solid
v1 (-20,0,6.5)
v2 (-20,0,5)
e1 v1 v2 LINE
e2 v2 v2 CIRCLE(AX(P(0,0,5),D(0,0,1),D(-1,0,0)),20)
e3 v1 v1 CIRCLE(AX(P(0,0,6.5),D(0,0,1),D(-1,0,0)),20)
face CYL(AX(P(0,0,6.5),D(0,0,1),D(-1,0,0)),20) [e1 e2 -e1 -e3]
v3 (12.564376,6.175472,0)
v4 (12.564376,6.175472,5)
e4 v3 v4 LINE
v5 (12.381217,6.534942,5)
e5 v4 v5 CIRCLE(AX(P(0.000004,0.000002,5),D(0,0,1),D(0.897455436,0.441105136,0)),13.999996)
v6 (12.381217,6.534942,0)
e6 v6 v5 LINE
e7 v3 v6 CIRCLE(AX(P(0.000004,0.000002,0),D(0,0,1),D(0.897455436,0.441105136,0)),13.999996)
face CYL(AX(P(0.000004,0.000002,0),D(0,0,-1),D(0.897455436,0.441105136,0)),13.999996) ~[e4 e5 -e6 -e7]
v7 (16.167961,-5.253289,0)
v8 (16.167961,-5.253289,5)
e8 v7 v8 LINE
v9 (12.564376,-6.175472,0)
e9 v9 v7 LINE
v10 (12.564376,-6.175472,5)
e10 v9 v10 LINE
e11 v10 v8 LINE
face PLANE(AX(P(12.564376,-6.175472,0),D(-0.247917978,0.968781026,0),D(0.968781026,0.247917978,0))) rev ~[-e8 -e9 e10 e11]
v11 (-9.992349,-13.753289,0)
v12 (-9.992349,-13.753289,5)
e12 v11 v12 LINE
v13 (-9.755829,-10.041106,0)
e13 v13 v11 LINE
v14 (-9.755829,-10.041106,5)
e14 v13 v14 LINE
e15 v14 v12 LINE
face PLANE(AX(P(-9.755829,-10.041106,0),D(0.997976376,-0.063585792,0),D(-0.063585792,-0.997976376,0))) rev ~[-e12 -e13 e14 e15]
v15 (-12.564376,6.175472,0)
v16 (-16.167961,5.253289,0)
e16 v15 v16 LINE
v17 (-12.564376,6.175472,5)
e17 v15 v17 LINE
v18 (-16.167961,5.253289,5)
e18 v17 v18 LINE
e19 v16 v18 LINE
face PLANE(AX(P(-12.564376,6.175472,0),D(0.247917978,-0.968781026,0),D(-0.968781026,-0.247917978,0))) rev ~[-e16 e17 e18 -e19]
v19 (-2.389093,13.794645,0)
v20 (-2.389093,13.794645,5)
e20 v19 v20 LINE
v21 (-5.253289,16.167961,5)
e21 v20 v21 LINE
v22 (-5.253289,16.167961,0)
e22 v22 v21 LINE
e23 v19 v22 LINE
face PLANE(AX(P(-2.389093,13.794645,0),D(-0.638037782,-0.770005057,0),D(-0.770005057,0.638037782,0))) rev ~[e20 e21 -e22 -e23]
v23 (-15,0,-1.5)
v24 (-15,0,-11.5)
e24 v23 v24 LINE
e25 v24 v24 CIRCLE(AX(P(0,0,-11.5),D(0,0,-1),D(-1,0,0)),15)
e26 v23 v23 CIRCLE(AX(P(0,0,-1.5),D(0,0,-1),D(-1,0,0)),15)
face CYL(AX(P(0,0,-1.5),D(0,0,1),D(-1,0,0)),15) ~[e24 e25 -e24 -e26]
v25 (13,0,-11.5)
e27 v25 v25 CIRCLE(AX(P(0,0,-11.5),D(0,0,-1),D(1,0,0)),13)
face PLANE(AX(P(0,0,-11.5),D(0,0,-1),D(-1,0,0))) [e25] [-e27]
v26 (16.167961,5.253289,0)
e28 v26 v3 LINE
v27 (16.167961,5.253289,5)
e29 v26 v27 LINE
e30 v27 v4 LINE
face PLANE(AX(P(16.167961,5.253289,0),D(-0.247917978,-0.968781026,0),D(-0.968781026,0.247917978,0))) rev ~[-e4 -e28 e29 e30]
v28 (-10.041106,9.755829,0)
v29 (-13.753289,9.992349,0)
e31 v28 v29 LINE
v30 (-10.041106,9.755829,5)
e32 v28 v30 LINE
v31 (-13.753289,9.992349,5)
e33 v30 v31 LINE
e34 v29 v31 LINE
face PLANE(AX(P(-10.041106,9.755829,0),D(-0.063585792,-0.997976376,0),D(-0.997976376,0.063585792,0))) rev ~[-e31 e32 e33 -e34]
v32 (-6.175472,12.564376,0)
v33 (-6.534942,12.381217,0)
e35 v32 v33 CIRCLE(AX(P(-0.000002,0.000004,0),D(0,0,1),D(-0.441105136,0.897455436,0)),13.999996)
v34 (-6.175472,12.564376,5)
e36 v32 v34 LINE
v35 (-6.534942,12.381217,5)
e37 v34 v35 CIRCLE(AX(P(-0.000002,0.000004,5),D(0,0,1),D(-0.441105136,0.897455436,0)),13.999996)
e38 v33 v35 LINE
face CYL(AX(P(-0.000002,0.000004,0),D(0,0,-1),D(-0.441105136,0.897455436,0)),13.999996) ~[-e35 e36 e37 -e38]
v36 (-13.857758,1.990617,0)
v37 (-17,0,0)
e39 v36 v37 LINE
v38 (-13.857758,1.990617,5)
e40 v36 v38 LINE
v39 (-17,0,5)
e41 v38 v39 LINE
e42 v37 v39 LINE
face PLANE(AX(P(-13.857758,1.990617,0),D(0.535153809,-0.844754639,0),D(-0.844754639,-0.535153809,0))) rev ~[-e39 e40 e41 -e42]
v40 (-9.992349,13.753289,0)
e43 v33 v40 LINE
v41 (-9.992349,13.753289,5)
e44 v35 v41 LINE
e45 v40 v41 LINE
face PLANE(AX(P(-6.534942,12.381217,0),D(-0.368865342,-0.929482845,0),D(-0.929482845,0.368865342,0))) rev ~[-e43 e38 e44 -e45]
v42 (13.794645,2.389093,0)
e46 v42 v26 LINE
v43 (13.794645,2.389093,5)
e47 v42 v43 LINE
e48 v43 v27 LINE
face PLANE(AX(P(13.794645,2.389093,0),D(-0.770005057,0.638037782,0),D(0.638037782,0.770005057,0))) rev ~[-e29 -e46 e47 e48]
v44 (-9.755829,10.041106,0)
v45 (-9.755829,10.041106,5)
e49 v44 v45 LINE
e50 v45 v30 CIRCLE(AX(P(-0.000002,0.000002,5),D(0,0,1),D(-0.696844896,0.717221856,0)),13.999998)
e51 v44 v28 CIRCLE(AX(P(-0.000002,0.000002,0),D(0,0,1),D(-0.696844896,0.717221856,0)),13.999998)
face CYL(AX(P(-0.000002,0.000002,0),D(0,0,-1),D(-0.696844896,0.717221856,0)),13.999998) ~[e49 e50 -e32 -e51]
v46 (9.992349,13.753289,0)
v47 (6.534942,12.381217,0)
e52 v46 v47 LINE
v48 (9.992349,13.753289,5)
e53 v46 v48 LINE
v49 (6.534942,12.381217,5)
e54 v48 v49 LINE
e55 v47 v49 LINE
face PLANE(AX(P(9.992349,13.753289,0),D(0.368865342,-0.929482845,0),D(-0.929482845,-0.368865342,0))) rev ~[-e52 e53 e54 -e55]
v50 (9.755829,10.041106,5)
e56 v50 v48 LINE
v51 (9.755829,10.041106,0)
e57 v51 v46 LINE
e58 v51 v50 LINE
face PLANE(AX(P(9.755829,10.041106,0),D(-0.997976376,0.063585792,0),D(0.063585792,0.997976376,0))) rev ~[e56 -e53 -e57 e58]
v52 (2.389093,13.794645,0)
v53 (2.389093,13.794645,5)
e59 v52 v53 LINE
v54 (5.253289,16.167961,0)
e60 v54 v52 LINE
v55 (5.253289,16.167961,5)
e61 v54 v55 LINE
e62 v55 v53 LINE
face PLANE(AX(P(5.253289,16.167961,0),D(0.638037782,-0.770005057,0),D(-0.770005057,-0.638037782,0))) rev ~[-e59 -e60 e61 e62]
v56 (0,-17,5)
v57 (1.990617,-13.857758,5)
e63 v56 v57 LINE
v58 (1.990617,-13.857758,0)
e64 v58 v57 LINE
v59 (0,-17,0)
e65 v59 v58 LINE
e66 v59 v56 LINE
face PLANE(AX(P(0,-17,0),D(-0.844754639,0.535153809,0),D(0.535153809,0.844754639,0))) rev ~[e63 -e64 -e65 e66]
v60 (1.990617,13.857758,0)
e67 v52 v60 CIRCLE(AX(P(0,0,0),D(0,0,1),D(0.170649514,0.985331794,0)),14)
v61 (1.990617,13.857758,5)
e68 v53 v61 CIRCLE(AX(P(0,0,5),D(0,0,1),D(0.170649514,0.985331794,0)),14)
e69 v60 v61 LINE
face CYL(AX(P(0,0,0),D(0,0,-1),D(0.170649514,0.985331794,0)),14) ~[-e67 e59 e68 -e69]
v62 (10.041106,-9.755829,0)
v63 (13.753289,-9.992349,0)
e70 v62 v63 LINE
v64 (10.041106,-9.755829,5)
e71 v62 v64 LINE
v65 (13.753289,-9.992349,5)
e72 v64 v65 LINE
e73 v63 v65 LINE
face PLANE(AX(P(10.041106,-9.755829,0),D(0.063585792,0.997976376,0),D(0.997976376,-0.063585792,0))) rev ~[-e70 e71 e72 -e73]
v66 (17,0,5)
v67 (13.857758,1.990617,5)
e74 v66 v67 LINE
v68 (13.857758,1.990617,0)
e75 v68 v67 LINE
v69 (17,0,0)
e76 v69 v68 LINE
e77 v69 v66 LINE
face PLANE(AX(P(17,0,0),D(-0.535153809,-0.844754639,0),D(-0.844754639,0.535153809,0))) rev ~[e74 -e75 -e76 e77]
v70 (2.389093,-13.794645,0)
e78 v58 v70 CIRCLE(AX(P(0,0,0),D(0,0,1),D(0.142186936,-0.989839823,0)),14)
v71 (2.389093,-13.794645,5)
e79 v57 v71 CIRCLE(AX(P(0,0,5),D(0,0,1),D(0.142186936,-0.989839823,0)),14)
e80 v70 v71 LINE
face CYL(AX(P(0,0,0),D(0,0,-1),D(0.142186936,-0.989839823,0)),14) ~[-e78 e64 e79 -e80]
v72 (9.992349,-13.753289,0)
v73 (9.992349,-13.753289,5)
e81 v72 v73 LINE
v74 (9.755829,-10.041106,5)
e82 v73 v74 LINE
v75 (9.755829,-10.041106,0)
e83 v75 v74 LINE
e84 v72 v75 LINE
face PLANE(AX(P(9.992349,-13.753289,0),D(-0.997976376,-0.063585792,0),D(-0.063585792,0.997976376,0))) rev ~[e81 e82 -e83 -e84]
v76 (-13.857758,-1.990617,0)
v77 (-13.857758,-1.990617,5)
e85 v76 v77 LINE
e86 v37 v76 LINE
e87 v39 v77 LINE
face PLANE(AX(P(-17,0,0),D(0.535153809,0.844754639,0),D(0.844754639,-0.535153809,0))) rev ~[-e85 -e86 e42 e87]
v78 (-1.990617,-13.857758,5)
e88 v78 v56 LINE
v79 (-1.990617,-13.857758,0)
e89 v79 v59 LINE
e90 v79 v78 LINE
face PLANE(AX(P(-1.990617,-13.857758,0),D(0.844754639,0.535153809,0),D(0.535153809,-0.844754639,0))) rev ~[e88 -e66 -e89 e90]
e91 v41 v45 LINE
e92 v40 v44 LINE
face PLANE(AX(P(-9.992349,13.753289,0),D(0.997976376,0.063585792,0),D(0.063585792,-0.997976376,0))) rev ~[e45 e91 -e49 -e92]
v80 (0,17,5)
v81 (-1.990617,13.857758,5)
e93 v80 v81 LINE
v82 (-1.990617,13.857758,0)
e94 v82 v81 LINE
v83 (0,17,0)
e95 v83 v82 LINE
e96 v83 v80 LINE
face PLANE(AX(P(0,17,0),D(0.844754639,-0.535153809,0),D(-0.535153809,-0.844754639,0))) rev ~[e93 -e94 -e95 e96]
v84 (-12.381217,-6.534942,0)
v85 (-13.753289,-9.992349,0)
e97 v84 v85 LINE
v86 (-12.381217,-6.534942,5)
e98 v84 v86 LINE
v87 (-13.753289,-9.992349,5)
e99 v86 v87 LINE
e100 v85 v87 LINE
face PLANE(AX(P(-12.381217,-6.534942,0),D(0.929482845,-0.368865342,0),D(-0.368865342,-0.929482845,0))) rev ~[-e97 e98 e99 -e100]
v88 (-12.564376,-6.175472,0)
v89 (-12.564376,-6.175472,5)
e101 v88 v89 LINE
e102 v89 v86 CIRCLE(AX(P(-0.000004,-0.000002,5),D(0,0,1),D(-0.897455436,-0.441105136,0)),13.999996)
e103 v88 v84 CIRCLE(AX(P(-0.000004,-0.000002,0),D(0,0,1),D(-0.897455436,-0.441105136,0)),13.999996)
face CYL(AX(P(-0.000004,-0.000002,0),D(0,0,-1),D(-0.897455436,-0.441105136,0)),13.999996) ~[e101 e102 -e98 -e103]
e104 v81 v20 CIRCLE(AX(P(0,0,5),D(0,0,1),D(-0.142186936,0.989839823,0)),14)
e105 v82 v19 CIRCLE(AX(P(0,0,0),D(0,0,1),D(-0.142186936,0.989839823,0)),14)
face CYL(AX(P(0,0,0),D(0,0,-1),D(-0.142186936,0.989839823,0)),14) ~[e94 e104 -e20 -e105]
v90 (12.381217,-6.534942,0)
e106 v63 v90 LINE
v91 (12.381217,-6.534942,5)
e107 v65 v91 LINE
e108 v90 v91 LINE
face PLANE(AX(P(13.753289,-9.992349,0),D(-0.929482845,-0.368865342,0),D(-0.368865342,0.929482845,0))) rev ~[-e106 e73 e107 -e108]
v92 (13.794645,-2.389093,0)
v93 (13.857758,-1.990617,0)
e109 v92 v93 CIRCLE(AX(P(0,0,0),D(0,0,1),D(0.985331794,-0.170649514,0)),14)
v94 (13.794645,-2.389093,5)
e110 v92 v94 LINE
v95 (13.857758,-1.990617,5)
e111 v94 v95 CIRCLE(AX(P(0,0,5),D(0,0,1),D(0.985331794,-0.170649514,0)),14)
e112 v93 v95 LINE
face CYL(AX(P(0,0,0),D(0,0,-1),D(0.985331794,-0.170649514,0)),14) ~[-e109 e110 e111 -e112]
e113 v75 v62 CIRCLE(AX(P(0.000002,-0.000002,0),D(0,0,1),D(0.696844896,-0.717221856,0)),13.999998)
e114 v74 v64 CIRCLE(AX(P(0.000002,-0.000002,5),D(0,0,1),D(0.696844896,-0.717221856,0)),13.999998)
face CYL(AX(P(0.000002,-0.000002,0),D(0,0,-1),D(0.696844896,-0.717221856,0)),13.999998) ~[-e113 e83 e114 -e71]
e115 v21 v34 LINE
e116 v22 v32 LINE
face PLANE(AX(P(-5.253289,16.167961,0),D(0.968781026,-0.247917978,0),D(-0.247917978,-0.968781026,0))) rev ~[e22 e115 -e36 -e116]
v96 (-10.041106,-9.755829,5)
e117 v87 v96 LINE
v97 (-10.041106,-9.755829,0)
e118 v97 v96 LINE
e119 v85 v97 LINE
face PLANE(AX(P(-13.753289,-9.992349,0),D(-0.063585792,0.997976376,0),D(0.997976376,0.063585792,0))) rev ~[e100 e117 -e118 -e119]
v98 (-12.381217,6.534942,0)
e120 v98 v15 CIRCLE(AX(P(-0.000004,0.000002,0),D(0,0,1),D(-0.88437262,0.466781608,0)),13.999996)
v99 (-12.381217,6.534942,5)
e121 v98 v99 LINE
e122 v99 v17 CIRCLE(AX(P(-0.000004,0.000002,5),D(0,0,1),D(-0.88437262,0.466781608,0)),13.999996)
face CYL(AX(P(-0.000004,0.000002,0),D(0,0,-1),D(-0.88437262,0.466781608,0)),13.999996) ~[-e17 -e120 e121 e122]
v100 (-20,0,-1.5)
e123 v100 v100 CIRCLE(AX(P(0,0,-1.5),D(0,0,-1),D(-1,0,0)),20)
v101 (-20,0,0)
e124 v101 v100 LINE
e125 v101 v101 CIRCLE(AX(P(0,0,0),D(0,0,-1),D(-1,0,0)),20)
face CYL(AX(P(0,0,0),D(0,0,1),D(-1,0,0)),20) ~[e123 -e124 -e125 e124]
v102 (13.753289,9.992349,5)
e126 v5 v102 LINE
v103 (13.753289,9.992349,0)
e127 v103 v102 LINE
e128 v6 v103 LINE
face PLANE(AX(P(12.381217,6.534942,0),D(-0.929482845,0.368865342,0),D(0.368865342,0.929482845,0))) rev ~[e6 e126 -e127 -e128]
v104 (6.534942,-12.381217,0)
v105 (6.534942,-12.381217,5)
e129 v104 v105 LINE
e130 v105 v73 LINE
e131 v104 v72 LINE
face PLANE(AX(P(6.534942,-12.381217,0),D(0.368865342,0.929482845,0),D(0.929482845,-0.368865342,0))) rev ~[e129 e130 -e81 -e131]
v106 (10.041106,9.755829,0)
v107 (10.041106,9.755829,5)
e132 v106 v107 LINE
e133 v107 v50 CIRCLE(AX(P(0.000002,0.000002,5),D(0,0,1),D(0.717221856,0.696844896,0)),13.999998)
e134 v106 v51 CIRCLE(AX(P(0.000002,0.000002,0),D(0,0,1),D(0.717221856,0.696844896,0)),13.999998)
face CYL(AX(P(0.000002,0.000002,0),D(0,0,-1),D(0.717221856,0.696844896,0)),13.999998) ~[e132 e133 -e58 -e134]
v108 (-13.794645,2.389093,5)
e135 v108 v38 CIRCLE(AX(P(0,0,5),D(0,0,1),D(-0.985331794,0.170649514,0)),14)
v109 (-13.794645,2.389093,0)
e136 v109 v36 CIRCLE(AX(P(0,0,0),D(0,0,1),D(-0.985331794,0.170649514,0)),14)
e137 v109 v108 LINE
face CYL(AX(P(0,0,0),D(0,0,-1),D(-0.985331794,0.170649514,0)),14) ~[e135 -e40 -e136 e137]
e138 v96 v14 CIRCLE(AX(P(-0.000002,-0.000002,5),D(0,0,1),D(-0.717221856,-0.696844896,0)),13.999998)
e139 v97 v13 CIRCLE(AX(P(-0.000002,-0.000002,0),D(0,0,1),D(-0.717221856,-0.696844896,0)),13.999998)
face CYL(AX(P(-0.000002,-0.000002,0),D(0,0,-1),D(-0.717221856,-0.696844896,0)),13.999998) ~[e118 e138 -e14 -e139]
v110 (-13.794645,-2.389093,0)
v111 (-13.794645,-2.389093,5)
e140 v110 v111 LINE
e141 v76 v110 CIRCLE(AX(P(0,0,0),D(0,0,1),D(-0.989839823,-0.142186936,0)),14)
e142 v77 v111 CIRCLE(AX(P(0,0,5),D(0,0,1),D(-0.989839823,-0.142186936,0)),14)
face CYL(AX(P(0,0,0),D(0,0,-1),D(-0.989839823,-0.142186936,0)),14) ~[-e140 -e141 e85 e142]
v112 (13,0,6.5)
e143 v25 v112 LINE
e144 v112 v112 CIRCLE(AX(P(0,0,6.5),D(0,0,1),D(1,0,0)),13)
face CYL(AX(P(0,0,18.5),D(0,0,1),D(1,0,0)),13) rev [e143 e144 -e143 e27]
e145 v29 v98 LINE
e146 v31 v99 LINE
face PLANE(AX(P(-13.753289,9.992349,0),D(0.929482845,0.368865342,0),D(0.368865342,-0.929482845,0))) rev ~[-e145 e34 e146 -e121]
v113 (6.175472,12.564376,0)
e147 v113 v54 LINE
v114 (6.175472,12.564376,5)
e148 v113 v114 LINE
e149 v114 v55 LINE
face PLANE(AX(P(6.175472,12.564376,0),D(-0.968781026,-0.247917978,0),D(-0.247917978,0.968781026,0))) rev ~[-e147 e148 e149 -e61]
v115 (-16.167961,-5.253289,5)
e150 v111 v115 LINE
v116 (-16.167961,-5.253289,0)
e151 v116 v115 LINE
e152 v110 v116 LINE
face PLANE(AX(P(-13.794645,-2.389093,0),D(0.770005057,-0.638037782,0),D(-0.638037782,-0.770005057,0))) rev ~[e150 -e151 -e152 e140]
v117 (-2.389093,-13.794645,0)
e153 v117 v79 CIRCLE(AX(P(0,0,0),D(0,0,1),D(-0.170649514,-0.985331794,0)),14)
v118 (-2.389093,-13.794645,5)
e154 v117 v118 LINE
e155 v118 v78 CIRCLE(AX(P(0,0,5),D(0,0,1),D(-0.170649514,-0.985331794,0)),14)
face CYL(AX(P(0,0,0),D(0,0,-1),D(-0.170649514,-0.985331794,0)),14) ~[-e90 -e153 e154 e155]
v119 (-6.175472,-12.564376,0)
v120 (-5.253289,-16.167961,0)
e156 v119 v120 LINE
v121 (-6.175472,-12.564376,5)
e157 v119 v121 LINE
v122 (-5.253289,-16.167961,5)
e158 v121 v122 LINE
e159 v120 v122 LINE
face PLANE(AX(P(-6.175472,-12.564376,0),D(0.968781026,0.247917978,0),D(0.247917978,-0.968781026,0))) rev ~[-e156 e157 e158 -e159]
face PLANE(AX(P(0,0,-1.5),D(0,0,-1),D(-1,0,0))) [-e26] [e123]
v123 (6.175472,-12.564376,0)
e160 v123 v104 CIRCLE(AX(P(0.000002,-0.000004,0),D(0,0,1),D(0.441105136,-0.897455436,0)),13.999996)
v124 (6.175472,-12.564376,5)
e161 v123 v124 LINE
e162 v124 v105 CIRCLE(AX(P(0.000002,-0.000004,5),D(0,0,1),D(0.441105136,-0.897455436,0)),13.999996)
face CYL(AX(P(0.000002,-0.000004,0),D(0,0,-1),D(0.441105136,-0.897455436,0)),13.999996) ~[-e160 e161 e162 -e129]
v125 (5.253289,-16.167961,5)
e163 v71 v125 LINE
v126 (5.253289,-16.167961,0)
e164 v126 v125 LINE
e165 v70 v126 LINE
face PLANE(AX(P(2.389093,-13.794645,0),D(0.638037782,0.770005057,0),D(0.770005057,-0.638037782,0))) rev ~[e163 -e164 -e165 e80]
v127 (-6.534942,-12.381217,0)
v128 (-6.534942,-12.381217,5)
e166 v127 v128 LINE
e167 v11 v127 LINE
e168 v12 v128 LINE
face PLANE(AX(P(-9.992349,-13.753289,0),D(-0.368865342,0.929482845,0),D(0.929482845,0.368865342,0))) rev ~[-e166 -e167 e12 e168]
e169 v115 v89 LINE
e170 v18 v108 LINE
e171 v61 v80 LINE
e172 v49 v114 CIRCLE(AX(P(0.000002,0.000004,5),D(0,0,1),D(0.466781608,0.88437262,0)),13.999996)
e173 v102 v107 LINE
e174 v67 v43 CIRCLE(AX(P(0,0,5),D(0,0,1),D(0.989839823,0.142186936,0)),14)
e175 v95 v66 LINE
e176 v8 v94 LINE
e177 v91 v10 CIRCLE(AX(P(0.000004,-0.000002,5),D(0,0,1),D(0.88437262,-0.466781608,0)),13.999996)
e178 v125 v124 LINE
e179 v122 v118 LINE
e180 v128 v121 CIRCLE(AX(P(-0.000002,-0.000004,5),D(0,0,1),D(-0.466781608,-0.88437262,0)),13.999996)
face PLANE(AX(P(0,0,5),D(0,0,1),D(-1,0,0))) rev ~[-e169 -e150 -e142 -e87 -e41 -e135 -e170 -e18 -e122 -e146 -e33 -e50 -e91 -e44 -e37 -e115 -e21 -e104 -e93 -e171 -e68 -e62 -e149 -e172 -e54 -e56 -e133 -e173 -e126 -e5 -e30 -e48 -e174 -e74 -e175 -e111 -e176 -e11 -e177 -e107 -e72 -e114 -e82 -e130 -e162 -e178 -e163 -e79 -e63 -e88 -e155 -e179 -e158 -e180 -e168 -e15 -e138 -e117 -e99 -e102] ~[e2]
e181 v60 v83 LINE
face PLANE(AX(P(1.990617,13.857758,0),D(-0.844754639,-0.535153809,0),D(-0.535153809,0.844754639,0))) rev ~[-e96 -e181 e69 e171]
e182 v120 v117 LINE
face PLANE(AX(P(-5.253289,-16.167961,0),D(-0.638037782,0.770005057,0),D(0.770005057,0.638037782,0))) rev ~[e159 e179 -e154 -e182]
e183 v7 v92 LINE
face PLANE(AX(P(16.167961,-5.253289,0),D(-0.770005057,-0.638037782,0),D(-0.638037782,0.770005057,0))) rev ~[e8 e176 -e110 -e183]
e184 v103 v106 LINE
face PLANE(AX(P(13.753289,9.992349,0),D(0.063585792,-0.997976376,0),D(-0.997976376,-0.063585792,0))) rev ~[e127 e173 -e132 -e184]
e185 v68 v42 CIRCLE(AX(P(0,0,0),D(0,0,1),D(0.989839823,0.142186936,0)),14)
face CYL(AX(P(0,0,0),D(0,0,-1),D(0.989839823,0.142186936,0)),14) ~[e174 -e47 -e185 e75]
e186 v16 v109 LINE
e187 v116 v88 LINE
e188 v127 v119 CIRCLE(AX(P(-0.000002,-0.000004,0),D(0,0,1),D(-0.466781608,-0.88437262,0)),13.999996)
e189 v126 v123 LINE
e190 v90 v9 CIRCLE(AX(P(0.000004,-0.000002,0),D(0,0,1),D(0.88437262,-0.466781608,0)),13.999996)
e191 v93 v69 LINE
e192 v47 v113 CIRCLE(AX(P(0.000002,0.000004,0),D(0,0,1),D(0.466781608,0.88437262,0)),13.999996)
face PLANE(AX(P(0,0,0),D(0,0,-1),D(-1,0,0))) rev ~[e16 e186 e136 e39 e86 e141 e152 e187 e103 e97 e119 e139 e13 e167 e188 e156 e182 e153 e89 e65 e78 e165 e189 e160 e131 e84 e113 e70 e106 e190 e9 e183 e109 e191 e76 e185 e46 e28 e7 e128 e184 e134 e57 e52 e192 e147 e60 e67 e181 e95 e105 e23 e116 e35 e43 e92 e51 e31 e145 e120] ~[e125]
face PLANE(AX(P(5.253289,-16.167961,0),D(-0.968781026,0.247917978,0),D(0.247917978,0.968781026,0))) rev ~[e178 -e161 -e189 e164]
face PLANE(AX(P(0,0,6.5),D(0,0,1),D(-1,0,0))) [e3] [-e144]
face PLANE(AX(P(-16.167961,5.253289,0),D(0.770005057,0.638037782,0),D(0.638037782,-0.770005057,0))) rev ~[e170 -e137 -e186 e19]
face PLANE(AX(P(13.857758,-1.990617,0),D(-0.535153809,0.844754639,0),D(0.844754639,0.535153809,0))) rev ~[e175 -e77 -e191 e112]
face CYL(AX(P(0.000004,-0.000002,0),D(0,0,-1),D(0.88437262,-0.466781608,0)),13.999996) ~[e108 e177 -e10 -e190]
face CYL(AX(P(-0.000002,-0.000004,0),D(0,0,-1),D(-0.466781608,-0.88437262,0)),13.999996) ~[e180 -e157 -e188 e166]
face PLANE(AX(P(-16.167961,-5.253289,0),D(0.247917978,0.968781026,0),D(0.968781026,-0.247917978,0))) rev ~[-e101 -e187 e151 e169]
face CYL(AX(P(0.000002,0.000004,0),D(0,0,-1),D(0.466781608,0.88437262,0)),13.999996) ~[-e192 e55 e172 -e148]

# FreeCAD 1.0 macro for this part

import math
import FreeCAD as App
import Part
import Sketcher
from FreeCAD import Vector
Q = App.Units.Quantity

doc = App.newDocument("Part")
body = doc.addObject("PartDesign::Body", "Body")

sketch1 = body.newObject("Sketcher::SketchObject", "Sketch")
sketch1.AttachmentSupport = (doc.getObject("XY_Plane"), [""])
sketch1.MapMode = "FlatFace"
sketch1.addGeometry(Part.LineSegment(Vector(0, 17, 0), Vector(-1.99, 13.86, 0)), False)
sketch1.addGeometry(Part.ArcOfCircle(Part.Circle(Vector(0, 0, 0), Vector(0, 0, 1), 14), math.radians(98.17), math.radians(99.83)), False)
sketch1.addGeometry(Part.LineSegment(Vector(-2.39, 13.79, 0), Vector(-5.25, 16.17, 0)), False)
sketch1.addGeometry(Part.LineSegment(Vector(-5.25, 16.17, 0), Vector(-6.18, 12.56, 0)), False)
sketch1.addGeometry(Part.ArcOfCircle(Part.Circle(Vector(0, 0, 0), Vector(0, 0, 1), 14), math.radians(116.17), math.radians(117.83)), False)
sketch1.addGeometry(Part.LineSegment(Vector(-6.53, 12.38, 0), Vector(-9.99, 13.75, 0)), False)
sketch1.addGeometry(Part.LineSegment(Vector(-9.99, 13.75, 0), Vector(-9.76, 10.04, 0)), False)
sketch1.addGeometry(Part.ArcOfCircle(Part.Circle(Vector(0, 0, 0), Vector(0, 0, 1), 14), math.radians(134.17), math.radians(135.83)), False)
sketch1.addGeometry(Part.LineSegment(Vector(-10.04, 9.76, 0), Vector(-13.75, 9.99, 0)), False)
sketch1.addGeometry(Part.LineSegment(Vector(-13.75, 9.99, 0), Vector(-12.38, 6.53, 0)), False)
sketch1.addGeometry(Part.ArcOfCircle(Part.Circle(Vector(0, 0, 0), Vector(0, 0, 1), 14), math.radians(152.17), math.radians(153.83)), False)
sketch1.addGeometry(Part.LineSegment(Vector(-12.56, 6.18, 0), Vector(-16.17, 5.25, 0)), False)
sketch1.addGeometry(Part.LineSegment(Vector(-16.17, 5.25, 0), Vector(-13.79, 2.39, 0)), False)
sketch1.addGeometry(Part.ArcOfCircle(Part.Circle(Vector(0, 0, 0), Vector(0, 0, 1), 14), math.radians(170.17), math.radians(171.83)), False)
sketch1.addGeometry(Part.LineSegment(Vector(-13.86, 1.99, 0), Vector(-17, 0, 0)), False)
sketch1.addGeometry(Part.LineSegment(Vector(-17, 0, 0), Vector(-13.86, -1.99, 0)), False)
sketch1.addGeometry(Part.ArcOfCircle(Part.Circle(Vector(0, 0, 0), Vector(0, 0, 1), 14), math.radians(-171.83), math.radians(-170.17)), False)
sketch1.addGeometry(Part.LineSegment(Vector(-13.79, -2.39, 0), Vector(-16.17, -5.25, 0)), False)
sketch1.addGeometry(Part.LineSegment(Vector(-16.17, -5.25, 0), Vector(-12.56, -6.18, 0)), False)
sketch1.addGeometry(Part.ArcOfCircle(Part.Circle(Vector(0, 0, 0), Vector(0, 0, 1), 14), math.radians(-153.83), math.radians(-152.17)), False)
sketch1.addGeometry(Part.LineSegment(Vector(-12.38, -6.53, 0), Vector(-13.75, -9.99, 0)), False)
sketch1.addGeometry(Part.LineSegment(Vector(-13.75, -9.99, 0), Vector(-10.04, -9.76, 0)), False)
sketch1.addGeometry(Part.ArcOfCircle(Part.Circle(Vector(0, 0, 0), Vector(0, 0, 1), 14), math.radians(-135.83), math.radians(-134.17)), False)
sketch1.addGeometry(Part.LineSegment(Vector(-9.76, -10.04, 0), Vector(-9.99, -13.75, 0)), False)
sketch1.addGeometry(Part.LineSegment(Vector(-9.99, -13.75, 0), Vector(-6.53, -12.38, 0)), False)
sketch1.addGeometry(Part.ArcOfCircle(Part.Circle(Vector(0, 0, 0), Vector(0, 0, 1), 14), math.radians(-117.83), math.radians(-116.17)), False)
sketch1.addGeometry(Part.LineSegment(Vector(-6.18, -12.56, 0), Vector(-5.25, -16.17, 0)), False)
sketch1.addGeometry(Part.LineSegment(Vector(-5.25, -16.17, 0), Vector(-2.39, -13.79, 0)), False)
sketch1.addGeometry(Part.ArcOfCircle(Part.Circle(Vector(0, 0, 0), Vector(0, 0, 1), 14), math.radians(-99.83), math.radians(-98.17)), False)
sketch1.addGeometry(Part.LineSegment(Vector(-1.99, -13.86, 0), Vector(0, -17, 0)), False)
sketch1.addGeometry(Part.LineSegment(Vector(0, -17, 0), Vector(1.99, -13.86, 0)), False)
sketch1.addGeometry(Part.ArcOfCircle(Part.Circle(Vector(0, 0, 0), Vector(0, 0, 1), 14), math.radians(-81.83), math.radians(-80.17)), False)
sketch1.addGeometry(Part.LineSegment(Vector(2.39, -13.79, 0), Vector(5.25, -16.17, 0)), False)
sketch1.addGeometry(Part.LineSegment(Vector(5.25, -16.17, 0), Vector(6.18, -12.56, 0)), False)
sketch1.addGeometry(Part.ArcOfCircle(Part.Circle(Vector(0, 0, 0), Vector(0, 0, 1), 14), math.radians(-63.83), math.radians(-62.17)), False)
sketch1.addGeometry(Part.LineSegment(Vector(6.53, -12.38, 0), Vector(9.99, -13.75, 0)), False)
sketch1.addGeometry(Part.LineSegment(Vector(9.99, -13.75, 0), Vector(9.76, -10.04, 0)), False)
sketch1.addGeometry(Part.ArcOfCircle(Part.Circle(Vector(0, 0, 0), Vector(0, 0, 1), 14), math.radians(-45.83), math.radians(-44.17)), False)
sketch1.addGeometry(Part.LineSegment(Vector(10.04, -9.76, 0), Vector(13.75, -9.99, 0)), False)
sketch1.addGeometry(Part.LineSegment(Vector(13.75, -9.99, 0), Vector(12.38, -6.53, 0)), False)
sketch1.addGeometry(Part.ArcOfCircle(Part.Circle(Vector(0, 0, 0), Vector(0, 0, 1), 14), math.radians(-27.83), math.radians(-26.17)), False)
sketch1.addGeometry(Part.LineSegment(Vector(12.56, -6.18, 0), Vector(16.17, -5.25, 0)), False)
sketch1.addGeometry(Part.LineSegment(Vector(16.17, -5.25, 0), Vector(13.79, -2.39, 0)), False)
sketch1.addGeometry(Part.ArcOfCircle(Part.Circle(Vector(0, 0, 0), Vector(0, 0, 1), 14), math.radians(-9.83), math.radians(-8.17)), False)
sketch1.addGeometry(Part.LineSegment(Vector(13.86, -1.99, 0), Vector(17, 0, 0)), False)
sketch1.addGeometry(Part.LineSegment(Vector(17, 0, 0), Vector(13.86, 1.99, 0)), False)
sketch1.addGeometry(Part.ArcOfCircle(Part.Circle(Vector(0, 0, 0), Vector(0, 0, 1), 14), math.radians(8.17), math.radians(9.83)), False)
sketch1.addGeometry(Part.LineSegment(Vector(13.79, 2.39, 0), Vector(16.17, 5.25, 0)), False)
sketch1.addGeometry(Part.LineSegment(Vector(16.17, 5.25, 0), Vector(12.56, 6.18, 0)), False)
sketch1.addGeometry(Part.ArcOfCircle(Part.Circle(Vector(0, 0, 0), Vector(0, 0, 1), 14), math.radians(26.17), math.radians(27.83)), False)
sketch1.addGeometry(Part.LineSegment(Vector(12.38, 6.53, 0), Vector(13.75, 9.99, 0)), False)
sketch1.addGeometry(Part.LineSegment(Vector(13.75, 9.99, 0), Vector(10.04, 9.76, 0)), False)
sketch1.addGeometry(Part.ArcOfCircle(Part.Circle(Vector(0, 0, 0), Vector(0, 0, 1), 14), math.radians(44.17), math.radians(45.83)), False)
sketch1.addGeometry(Part.LineSegment(Vector(9.76, 10.04, 0), Vector(9.99, 13.75, 0)), False)
sketch1.addGeometry(Part.LineSegment(Vector(9.99, 13.75, 0), Vector(6.53, 12.38, 0)), False)
sketch1.addGeometry(Part.ArcOfCircle(Part.Circle(Vector(0, 0, 0), Vector(0, 0, 1), 14), math.radians(62.17), math.radians(63.83)), False)
sketch1.addGeometry(Part.LineSegment(Vector(6.18, 12.56, 0), Vector(5.25, 16.17, 0)), False)
sketch1.addGeometry(Part.LineSegment(Vector(5.25, 16.17, 0), Vector(2.39, 13.79, 0)), False)
sketch1.addGeometry(Part.ArcOfCircle(Part.Circle(Vector(0, 0, 0), Vector(0, 0, 1), 14), math.radians(80.17), math.radians(81.83)), False)
sketch1.addGeometry(Part.LineSegment(Vector(1.99, 13.86, 0), Vector(0, 17, 0)), False)
sketch1.addConstraint(Sketcher.Constraint("Coincident", 0, 2, 1, 1))
sketch1.addConstraint(Sketcher.Constraint("Coincident", 1, 2, 2, 1))
sketch1.addConstraint(Sketcher.Constraint("Coincident", 2, 2, 3, 1))
sketch1.addConstraint(Sketcher.Constraint("Coincident", 3, 2, 4, 1))
sketch1.addConstraint(Sketcher.Constraint("Coincident", 4, 2, 5, 1))
sketch1.addConstraint(Sketcher.Constraint("Coincident", 5, 2, 6, 1))
sketch1.addConstraint(Sketcher.Constraint("Coincident", 6, 2, 7, 1))
sketch1.addConstraint(Sketcher.Constraint("Coincident", 7, 2, 8, 1))
sketch1.addConstraint(Sketcher.Constraint("Coincident", 8, 2, 9, 1))
sketch1.addConstraint(Sketcher.Constraint("Coincident", 9, 2, 10, 1))
sketch1.addConstraint(Sketcher.Constraint("Coincident", 10, 2, 11, 1))
sketch1.addConstraint(Sketcher.Constraint("Coincident", 11, 2, 12, 1))
sketch1.addConstraint(Sketcher.Constraint("Coincident", 12, 2, 13, 1))
sketch1.addConstraint(Sketcher.Constraint("Coincident", 13, 2, 14, 1))
sketch1.addConstraint(Sketcher.Constraint("Coincident", 14, 2, 15, 1))
sketch1.addConstraint(Sketcher.Constraint("Coincident", 15, 2, 16, 1))
sketch1.addConstraint(Sketcher.Constraint("Coincident", 16, 2, 17, 1))
sketch1.addConstraint(Sketcher.Constraint("Coincident", 17, 2, 18, 1))
sketch1.addConstraint(Sketcher.Constraint("Coincident", 18, 2, 19, 1))
sketch1.addConstraint(Sketcher.Constraint("Coincident", 19, 2, 20, 1))
sketch1.addConstraint(Sketcher.Constraint("Coincident", 20, 2, 21, 1))
sketch1.addConstraint(Sketcher.Constraint("Coincident", 21, 2, 22, 1))
sketch1.addConstraint(Sketcher.Constraint("Coincident", 22, 2, 23, 1))
sketch1.addConstraint(Sketcher.Constraint("Coincident", 23, 2, 24, 1))
sketch1.addConstraint(Sketcher.Constraint("Coincident", 24, 2, 25, 1))
sketch1.addConstraint(Sketcher.Constraint("Coincident", 25, 2, 26, 1))
sketch1.addConstraint(Sketcher.Constraint("Coincident", 26, 2, 27, 1))
sketch1.addConstraint(Sketcher.Constraint("Coincident", 27, 2, 28, 1))
sketch1.addConstraint(Sketcher.Constraint("Coincident", 28, 2, 29, 1))
sketch1.addConstraint(Sketcher.Constraint("Coincident", 29, 2, 30, 1))
sketch1.addConstraint(Sketcher.Constraint("Coincident", 30, 2, 31, 1))
sketch1.addConstraint(Sketcher.Constraint("Coincident", 31, 2, 32, 1))
sketch1.addConstraint(Sketcher.Constraint("Coincident", 32, 2, 33, 1))
sketch1.addConstraint(Sketcher.Constraint("Coincident", 33, 2, 34, 1))
sketch1.addConstraint(Sketcher.Constraint("Coincident", 34, 2, 35, 1))
sketch1.addConstraint(Sketcher.Constraint("Coincident", 35, 2, 36, 1))
sketch1.addConstraint(Sketcher.Constraint("Coincident", 36, 2, 37, 1))
sketch1.addConstraint(Sketcher.Constraint("Coincident", 37, 2, 38, 1))
sketch1.addConstraint(Sketcher.Constraint("Coincident", 38, 2, 39, 1))
sketch1.addConstraint(Sketcher.Constraint("Coincident", 39, 2, 40, 1))
sketch1.addConstraint(Sketcher.Constraint("Coincident", 40, 2, 41, 1))
sketch1.addConstraint(Sketcher.Constraint("Coincident", 41, 2, 42, 1))
sketch1.addConstraint(Sketcher.Constraint("Coincident", 42, 2, 43, 1))
sketch1.addConstraint(Sketcher.Constraint("Coincident", 43, 2, 44, 1))
sketch1.addConstraint(Sketcher.Constraint("Coincident", 44, 2, 45, 1))
sketch1.addConstraint(Sketcher.Constraint("Coincident", 45, 2, 46, 1))
sketch1.addConstraint(Sketcher.Constraint("Coincident", 46, 2, 47, 1))
sketch1.addConstraint(Sketcher.Constraint("Coincident", 47, 2, 48, 1))
sketch1.addConstraint(Sketcher.Constraint("Coincident", 48, 2, 49, 1))
sketch1.addConstraint(Sketcher.Constraint("Coincident", 49, 2, 50, 1))
sketch1.addConstraint(Sketcher.Constraint("Coincident", 50, 2, 51, 1))
sketch1.addConstraint(Sketcher.Constraint("Coincident", 51, 2, 52, 1))
sketch1.addConstraint(Sketcher.Constraint("Coincident", 52, 2, 53, 1))
sketch1.addConstraint(Sketcher.Constraint("Coincident", 53, 2, 54, 1))
sketch1.addConstraint(Sketcher.Constraint("Coincident", 54, 2, 55, 1))
sketch1.addConstraint(Sketcher.Constraint("Coincident", 55, 2, 56, 1))
sketch1.addConstraint(Sketcher.Constraint("Coincident", 56, 2, 57, 1))
sketch1.addConstraint(Sketcher.Constraint("Coincident", 57, 2, 58, 1))
sketch1.addConstraint(Sketcher.Constraint("Coincident", 58, 2, 59, 1))
sketch1.addConstraint(Sketcher.Constraint("Coincident", 59, 2, 0, 1))
sketch1.addConstraint(Sketcher.Constraint("Coincident", 1, 3, -1, 1))
sketch1.addConstraint(Sketcher.Constraint("Coincident", 4, 3, -1, 1))
sketch1.addConstraint(Sketcher.Constraint("Coincident", 7, 3, -1, 1))
sketch1.addConstraint(Sketcher.Constraint("Coincident", 10, 3, -1, 1))
sketch1.addConstraint(Sketcher.Constraint("Coincident", 13, 3, -1, 1))
sketch1.addConstraint(Sketcher.Constraint("Coincident", 16, 3, -1, 1))
sketch1.addConstraint(Sketcher.Constraint("Coincident", 19, 3, -1, 1))
sketch1.addConstraint(Sketcher.Constraint("Coincident", 22, 3, -1, 1))
sketch1.addConstraint(Sketcher.Constraint("Coincident", 25, 3, -1, 1))
sketch1.addConstraint(Sketcher.Constraint("Coincident", 28, 3, -1, 1))
sketch1.addConstraint(Sketcher.Constraint("Coincident", 31, 3, -1, 1))
sketch1.addConstraint(Sketcher.Constraint("Coincident", 34, 3, -1, 1))
sketch1.addConstraint(Sketcher.Constraint("Coincident", 37, 3, -1, 1))
sketch1.addConstraint(Sketcher.Constraint("Coincident", 40, 3, -1, 1))
sketch1.addConstraint(Sketcher.Constraint("Coincident", 43, 3, -1, 1))
sketch1.addConstraint(Sketcher.Constraint("Coincident", 46, 3, -1, 1))
sketch1.addConstraint(Sketcher.Constraint("Coincident", 49, 3, -1, 1))
sketch1.addConstraint(Sketcher.Constraint("Coincident", 52, 3, -1, 1))
sketch1.addConstraint(Sketcher.Constraint("Coincident", 55, 3, -1, 1))
sketch1.addConstraint(Sketcher.Constraint("Coincident", 58, 3, -1, 1))
sketch1.addConstraint(Sketcher.Constraint("Equal", 4, 10))
sketch1.addConstraint(Sketcher.Constraint("Equal", 1, 13))
sketch1.addConstraint(Sketcher.Constraint("Equal", 13, 16))
sketch1.addConstraint(Sketcher.Constraint("Equal", 10, 19))
sketch1.addConstraint(Sketcher.Constraint("Equal", 7, 22))
sketch1.addConstraint(Sketcher.Constraint("Equal", 19, 25))
sketch1.addConstraint(Sketcher.Constraint("Equal", 16, 28))
sketch1.addConstraint(Sketcher.Constraint("Equal", 28, 31))
sketch1.addConstraint(Sketcher.Constraint("Equal", 25, 34))
sketch1.addConstraint(Sketcher.Constraint("Equal", 22, 37))
sketch1.addConstraint(Sketcher.Constraint("Equal", 34, 40))
sketch1.addConstraint(Sketcher.Constraint("Equal", 31, 43))
sketch1.addConstraint(Sketcher.Constraint("Equal", 43, 46))
sketch1.addConstraint(Sketcher.Constraint("Equal", 40, 49))
sketch1.addConstraint(Sketcher.Constraint("Equal", 37, 52))
sketch1.addConstraint(Sketcher.Constraint("Equal", 49, 55))
sketch1.addConstraint(Sketcher.Constraint("Equal", 46, 58))
sketch1.addConstraint(Sketcher.Constraint("Symmetric", 2, 2, 32, 2, -1, 1))
sketch1.addConstraint(Sketcher.Constraint("Symmetric", 5, 2, 35, 2, -1, 1))
sketch1.addConstraint(Sketcher.Constraint("Symmetric", 8, 2, 38, 2, -1, 1))
sketch1.addConstraint(Sketcher.Constraint("Symmetric", 11, 2, 41, 2, -1, 1))
sketch1.addConstraint(Sketcher.Constraint("Symmetric", 14, 2, 44, 2, -1, 1))
sketch1.addConstraint(Sketcher.Constraint("Symmetric", 17, 2, 47, 2, -1, 1))
sketch1.addConstraint(Sketcher.Constraint("Symmetric", 20, 2, 50, 2, -1, 1))
sketch1.addConstraint(Sketcher.Constraint("Symmetric", 23, 2, 53, 2, -1, 1))
sketch1.addConstraint(Sketcher.Constraint("Symmetric", 26, 2, 56, 2, -1, 1))
sketch1.addConstraint(Sketcher.Constraint("Symmetric", 29, 2, 59, 2, -1, 1))
sketch1.addConstraint(Sketcher.Constraint("Symmetric", 26, 2, 32, 2, -2))
sketch1.addConstraint(Sketcher.Constraint("Symmetric", 23, 2, 35, 2, -2))
sketch1.addConstraint(Sketcher.Constraint("Symmetric", 20, 2, 38, 2, -2))
sketch1.addConstraint(Sketcher.Constraint("Symmetric", 17, 2, 41, 2, -2))
sketch1.addConstraint(Sketcher.Constraint("PointOnObject", 14, 2, -1))
sketch1.addConstraint(Sketcher.Constraint("PointOnObject", 29, 2, -2))
sketch1.addConstraint(Sketcher.Constraint("Perpendicular", 0, 15))
sketch1.addConstraint(Sketcher.Constraint("Perpendicular", 2, 17))
sketch1.addConstraint(Sketcher.Constraint("Perpendicular", 3, 18))
sketch1.addConstraint(Sketcher.Constraint("Perpendicular", 5, 20))
sketch1.addConstraint(Sketcher.Constraint("Perpendicular", 6, 21))
sketch1.addConstraint(Sketcher.Constraint("Perpendicular", 8, 23))
sketch1.addConstraint(Sketcher.Constraint("Perpendicular", 9, 24))
sketch1.addConstraint(Sketcher.Constraint("Perpendicular", 11, 26))
sketch1.addConstraint(Sketcher.Constraint("Perpendicular", 12, 27))
sketch1.addConstraint(Sketcher.Constraint("Perpendicular", 14, 29))
sketch1.addConstraint(Sketcher.Constraint("Perpendicular", 15, 30))
sketch1.addConstraint(Sketcher.Constraint("Perpendicular", 17, 32))
sketch1.addConstraint(Sketcher.Constraint("Perpendicular", 18, 33))
sketch1.addConstraint(Sketcher.Constraint("Perpendicular", 20, 35))
sketch1.addConstraint(Sketcher.Constraint("Perpendicular", 21, 36))
sketch1.addConstraint(Sketcher.Constraint("Perpendicular", 23, 38))
sketch1.addConstraint(Sketcher.Constraint("Perpendicular", 24, 39))
sketch1.addConstraint(Sketcher.Constraint("Perpendicular", 26, 41))
sketch1.addConstraint(Sketcher.Constraint("Perpendicular", 27, 42))
sketch1.addConstraint(Sketcher.Constraint("Perpendicular", 29, 44))
sketch1.addConstraint(Sketcher.Constraint("Perpendicular", 30, 45))
sketch1.addConstraint(Sketcher.Constraint("Perpendicular", 32, 47))
sketch1.addConstraint(Sketcher.Constraint("Perpendicular", 33, 48))
sketch1.addConstraint(Sketcher.Constraint("Perpendicular", 35, 50))
sketch1.addConstraint(Sketcher.Constraint("Perpendicular", 36, 51))
sketch1.addConstraint(Sketcher.Constraint("Perpendicular", 38, 53))
sketch1.addConstraint(Sketcher.Constraint("Perpendicular", 39, 54))
sketch1.addConstraint(Sketcher.Constraint("Perpendicular", 41, 56))
sketch1.addConstraint(Sketcher.Constraint("Perpendicular", 42, 57))
sketch1.addConstraint(Sketcher.Constraint("Perpendicular", 44, 59))
sketch1.addConstraint(Sketcher.Constraint("Horizontal", 28, 2, 30, 2))
sketch1.addConstraint(Sketcher.Constraint("Horizontal", 27, 2, 31, 2))
sketch1.addConstraint(Sketcher.Constraint("Horizontal", 25, 2, 33, 2))
sketch1.addConstraint(Sketcher.Constraint("Horizontal", 24, 2, 34, 2))
sketch1.addConstraint(Sketcher.Constraint("Horizontal", 22, 2, 36, 2))
sketch1.addConstraint(Sketcher.Constraint("Equal", 0, 2))
sketch1.addConstraint(Sketcher.Constraint("Equal", 2, 3))
sketch1.addConstraint(Sketcher.Constraint("Equal", 3, 5))
sketch1.addConstraint(Sketcher.Constraint("Equal", 5, 6))
sketch1.addConstraint(Sketcher.Constraint("Equal", 6, 8))
sketch1.addConstraint(Sketcher.Constraint("Equal", 8, 9))
sketch1.addConstraint(Sketcher.Constraint("Equal", 9, 11))
sketch1.addConstraint(Sketcher.Constraint("Equal", 11, 12))
sketch1.addConstraint(Sketcher.Constraint("Equal", 12, 14))
sketch1.addConstraint(Sketcher.Constraint("Radius", 1, Q("14 mm")))
sketch1.addConstraint(Sketcher.Constraint("DistanceX", 14, 2, -1, 1, Q("17 mm")))
sketch1.addConstraint(Sketcher.Constraint("Radius", 4, Q("13.999996 mm")))
sketch1.addConstraint(Sketcher.Constraint("Radius", 7, Q("13.999998 mm")))
sketch1.addConstraint(Sketcher.Constraint("Distance", 0, Q("3.71971 mm")))
sketch1.addConstraint(Sketcher.Constraint("DistanceX", 2, 2, -1, 1, Q("5.253289 mm")))
sketch1.addConstraint(Sketcher.Constraint("DistanceY", -1, 1, 2, 2, Q("16.167961 mm")))
sketch1.addConstraint(Sketcher.Constraint("DistanceX", 5, 2, -1, 1, Q("9.992349 mm")))
sketch1.addConstraint(Sketcher.Constraint("DistanceY", -1, 1, 5, 2, Q("13.753289 mm")))
pad1 = body.newObject("PartDesign::Pad", "Pad")
pad1.Profile = sketch1
pad1.Length = 5

sketch2 = body.newObject("Sketcher::SketchObject", "Sketch001")
sketch2.AttachmentSupport = (doc.getObject("XY_Plane"), [""])
sketch2.MapMode = "FlatFace"
sketch2.addGeometry(Part.Circle(Vector(0, 0, 0), Vector(0, 0, 1), 20), False)
sketch2.addConstraint(Sketcher.Constraint("Coincident", 0, 3, -1, 1))
sketch2.addConstraint(Sketcher.Constraint("Diameter", 0, Q("40 mm")))
pad2 = body.newObject("PartDesign::Pad", "Pad001")
pad2.Profile = sketch2
pad2.Length = 1.5
pad2.Reversed = True

sketch3 = body.newObject("Sketcher::SketchObject", "Sketch002")
sketch3.AttachmentSupport = (doc.getObject("XY_Plane"), [""])
sketch3.MapMode = "FlatFace"
sketch3.AttachmentOffset = App.Placement(Vector(0, 0, 6.5), App.Rotation())
sketch3.addGeometry(Part.Circle(Vector(0, 0, 0), Vector(0, 0, 1), 20), False)
sketch3.addConstraint(Sketcher.Constraint("Coincident", 0, 3, -1, 1))
sketch3.addConstraint(Sketcher.Constraint("Diameter", 0, Q("40 mm")))
pad3 = body.newObject("PartDesign::Pad", "Pad002")
pad3.Profile = sketch3
pad3.Length = 1.5
pad3.Reversed = True

sketch4 = body.newObject("Sketcher::SketchObject", "Sketch003")
sketch4.AttachmentSupport = (doc.getObject("XY_Plane"), [""])
sketch4.MapMode = "FlatFace"
sketch4.AttachmentOffset = App.Placement(Vector(0, 0, 6.5), App.Rotation())
sketch4.addGeometry(Part.Circle(Vector(0, 0, 0), Vector(0, 0, 1), 13), False)
sketch4.addConstraint(Sketcher.Constraint("Coincident", 0, 3, -1, 1))
sketch4.addConstraint(Sketcher.Constraint("Diameter", 0, Q("26 mm")))
pocket1 = body.newObject("PartDesign::Pocket", "Pocket")
pocket1.Profile = sketch4
pocket1.Length = 11.5

sketch5 = body.newObject("Sketcher::SketchObject", "Sketch004")
sketch5.AttachmentSupport = (doc.getObject("XY_Plane"), [""])
sketch5.MapMode = "FlatFace"
sketch5.AttachmentOffset = App.Placement(Vector(0, 0, -1.5), App.Rotation())
sketch5.addGeometry(Part.Circle(Vector(0, 0, 0), Vector(0, 0, 1), 15), False)
sketch5.addConstraint(Sketcher.Constraint("Coincident", 0, 3, -1, 1))
sketch5.addConstraint(Sketcher.Constraint("Diameter", 0, Q("30 mm")))
pad4 = body.newObject("PartDesign::Pad", "Pad003")
pad4.Profile = sketch5
pad4.Length = 10
pad4.Reversed = True

sketch6 = body.newObject("Sketcher::SketchObject", "Sketch005")
sketch6.AttachmentSupport = (doc.getObject("XY_Plane"), [""])
sketch6.MapMode = "FlatFace"
sketch6.AttachmentOffset = App.Placement(Vector(0, 0, 18.5), App.Rotation())
sketch6.addGeometry(Part.Circle(Vector(0, 0, 0), Vector(0, 0, 1), 13), False)
sketch6.addConstraint(Sketcher.Constraint("Coincident", 0, 3, -1, 1))
sketch6.addConstraint(Sketcher.Constraint("Diameter", 0, Q("26 mm")))
pocket2 = body.newObject("PartDesign::Pocket", "Pocket001")
pocket2.Profile = sketch6
pocket2.Length = 30

doc.recompute()
